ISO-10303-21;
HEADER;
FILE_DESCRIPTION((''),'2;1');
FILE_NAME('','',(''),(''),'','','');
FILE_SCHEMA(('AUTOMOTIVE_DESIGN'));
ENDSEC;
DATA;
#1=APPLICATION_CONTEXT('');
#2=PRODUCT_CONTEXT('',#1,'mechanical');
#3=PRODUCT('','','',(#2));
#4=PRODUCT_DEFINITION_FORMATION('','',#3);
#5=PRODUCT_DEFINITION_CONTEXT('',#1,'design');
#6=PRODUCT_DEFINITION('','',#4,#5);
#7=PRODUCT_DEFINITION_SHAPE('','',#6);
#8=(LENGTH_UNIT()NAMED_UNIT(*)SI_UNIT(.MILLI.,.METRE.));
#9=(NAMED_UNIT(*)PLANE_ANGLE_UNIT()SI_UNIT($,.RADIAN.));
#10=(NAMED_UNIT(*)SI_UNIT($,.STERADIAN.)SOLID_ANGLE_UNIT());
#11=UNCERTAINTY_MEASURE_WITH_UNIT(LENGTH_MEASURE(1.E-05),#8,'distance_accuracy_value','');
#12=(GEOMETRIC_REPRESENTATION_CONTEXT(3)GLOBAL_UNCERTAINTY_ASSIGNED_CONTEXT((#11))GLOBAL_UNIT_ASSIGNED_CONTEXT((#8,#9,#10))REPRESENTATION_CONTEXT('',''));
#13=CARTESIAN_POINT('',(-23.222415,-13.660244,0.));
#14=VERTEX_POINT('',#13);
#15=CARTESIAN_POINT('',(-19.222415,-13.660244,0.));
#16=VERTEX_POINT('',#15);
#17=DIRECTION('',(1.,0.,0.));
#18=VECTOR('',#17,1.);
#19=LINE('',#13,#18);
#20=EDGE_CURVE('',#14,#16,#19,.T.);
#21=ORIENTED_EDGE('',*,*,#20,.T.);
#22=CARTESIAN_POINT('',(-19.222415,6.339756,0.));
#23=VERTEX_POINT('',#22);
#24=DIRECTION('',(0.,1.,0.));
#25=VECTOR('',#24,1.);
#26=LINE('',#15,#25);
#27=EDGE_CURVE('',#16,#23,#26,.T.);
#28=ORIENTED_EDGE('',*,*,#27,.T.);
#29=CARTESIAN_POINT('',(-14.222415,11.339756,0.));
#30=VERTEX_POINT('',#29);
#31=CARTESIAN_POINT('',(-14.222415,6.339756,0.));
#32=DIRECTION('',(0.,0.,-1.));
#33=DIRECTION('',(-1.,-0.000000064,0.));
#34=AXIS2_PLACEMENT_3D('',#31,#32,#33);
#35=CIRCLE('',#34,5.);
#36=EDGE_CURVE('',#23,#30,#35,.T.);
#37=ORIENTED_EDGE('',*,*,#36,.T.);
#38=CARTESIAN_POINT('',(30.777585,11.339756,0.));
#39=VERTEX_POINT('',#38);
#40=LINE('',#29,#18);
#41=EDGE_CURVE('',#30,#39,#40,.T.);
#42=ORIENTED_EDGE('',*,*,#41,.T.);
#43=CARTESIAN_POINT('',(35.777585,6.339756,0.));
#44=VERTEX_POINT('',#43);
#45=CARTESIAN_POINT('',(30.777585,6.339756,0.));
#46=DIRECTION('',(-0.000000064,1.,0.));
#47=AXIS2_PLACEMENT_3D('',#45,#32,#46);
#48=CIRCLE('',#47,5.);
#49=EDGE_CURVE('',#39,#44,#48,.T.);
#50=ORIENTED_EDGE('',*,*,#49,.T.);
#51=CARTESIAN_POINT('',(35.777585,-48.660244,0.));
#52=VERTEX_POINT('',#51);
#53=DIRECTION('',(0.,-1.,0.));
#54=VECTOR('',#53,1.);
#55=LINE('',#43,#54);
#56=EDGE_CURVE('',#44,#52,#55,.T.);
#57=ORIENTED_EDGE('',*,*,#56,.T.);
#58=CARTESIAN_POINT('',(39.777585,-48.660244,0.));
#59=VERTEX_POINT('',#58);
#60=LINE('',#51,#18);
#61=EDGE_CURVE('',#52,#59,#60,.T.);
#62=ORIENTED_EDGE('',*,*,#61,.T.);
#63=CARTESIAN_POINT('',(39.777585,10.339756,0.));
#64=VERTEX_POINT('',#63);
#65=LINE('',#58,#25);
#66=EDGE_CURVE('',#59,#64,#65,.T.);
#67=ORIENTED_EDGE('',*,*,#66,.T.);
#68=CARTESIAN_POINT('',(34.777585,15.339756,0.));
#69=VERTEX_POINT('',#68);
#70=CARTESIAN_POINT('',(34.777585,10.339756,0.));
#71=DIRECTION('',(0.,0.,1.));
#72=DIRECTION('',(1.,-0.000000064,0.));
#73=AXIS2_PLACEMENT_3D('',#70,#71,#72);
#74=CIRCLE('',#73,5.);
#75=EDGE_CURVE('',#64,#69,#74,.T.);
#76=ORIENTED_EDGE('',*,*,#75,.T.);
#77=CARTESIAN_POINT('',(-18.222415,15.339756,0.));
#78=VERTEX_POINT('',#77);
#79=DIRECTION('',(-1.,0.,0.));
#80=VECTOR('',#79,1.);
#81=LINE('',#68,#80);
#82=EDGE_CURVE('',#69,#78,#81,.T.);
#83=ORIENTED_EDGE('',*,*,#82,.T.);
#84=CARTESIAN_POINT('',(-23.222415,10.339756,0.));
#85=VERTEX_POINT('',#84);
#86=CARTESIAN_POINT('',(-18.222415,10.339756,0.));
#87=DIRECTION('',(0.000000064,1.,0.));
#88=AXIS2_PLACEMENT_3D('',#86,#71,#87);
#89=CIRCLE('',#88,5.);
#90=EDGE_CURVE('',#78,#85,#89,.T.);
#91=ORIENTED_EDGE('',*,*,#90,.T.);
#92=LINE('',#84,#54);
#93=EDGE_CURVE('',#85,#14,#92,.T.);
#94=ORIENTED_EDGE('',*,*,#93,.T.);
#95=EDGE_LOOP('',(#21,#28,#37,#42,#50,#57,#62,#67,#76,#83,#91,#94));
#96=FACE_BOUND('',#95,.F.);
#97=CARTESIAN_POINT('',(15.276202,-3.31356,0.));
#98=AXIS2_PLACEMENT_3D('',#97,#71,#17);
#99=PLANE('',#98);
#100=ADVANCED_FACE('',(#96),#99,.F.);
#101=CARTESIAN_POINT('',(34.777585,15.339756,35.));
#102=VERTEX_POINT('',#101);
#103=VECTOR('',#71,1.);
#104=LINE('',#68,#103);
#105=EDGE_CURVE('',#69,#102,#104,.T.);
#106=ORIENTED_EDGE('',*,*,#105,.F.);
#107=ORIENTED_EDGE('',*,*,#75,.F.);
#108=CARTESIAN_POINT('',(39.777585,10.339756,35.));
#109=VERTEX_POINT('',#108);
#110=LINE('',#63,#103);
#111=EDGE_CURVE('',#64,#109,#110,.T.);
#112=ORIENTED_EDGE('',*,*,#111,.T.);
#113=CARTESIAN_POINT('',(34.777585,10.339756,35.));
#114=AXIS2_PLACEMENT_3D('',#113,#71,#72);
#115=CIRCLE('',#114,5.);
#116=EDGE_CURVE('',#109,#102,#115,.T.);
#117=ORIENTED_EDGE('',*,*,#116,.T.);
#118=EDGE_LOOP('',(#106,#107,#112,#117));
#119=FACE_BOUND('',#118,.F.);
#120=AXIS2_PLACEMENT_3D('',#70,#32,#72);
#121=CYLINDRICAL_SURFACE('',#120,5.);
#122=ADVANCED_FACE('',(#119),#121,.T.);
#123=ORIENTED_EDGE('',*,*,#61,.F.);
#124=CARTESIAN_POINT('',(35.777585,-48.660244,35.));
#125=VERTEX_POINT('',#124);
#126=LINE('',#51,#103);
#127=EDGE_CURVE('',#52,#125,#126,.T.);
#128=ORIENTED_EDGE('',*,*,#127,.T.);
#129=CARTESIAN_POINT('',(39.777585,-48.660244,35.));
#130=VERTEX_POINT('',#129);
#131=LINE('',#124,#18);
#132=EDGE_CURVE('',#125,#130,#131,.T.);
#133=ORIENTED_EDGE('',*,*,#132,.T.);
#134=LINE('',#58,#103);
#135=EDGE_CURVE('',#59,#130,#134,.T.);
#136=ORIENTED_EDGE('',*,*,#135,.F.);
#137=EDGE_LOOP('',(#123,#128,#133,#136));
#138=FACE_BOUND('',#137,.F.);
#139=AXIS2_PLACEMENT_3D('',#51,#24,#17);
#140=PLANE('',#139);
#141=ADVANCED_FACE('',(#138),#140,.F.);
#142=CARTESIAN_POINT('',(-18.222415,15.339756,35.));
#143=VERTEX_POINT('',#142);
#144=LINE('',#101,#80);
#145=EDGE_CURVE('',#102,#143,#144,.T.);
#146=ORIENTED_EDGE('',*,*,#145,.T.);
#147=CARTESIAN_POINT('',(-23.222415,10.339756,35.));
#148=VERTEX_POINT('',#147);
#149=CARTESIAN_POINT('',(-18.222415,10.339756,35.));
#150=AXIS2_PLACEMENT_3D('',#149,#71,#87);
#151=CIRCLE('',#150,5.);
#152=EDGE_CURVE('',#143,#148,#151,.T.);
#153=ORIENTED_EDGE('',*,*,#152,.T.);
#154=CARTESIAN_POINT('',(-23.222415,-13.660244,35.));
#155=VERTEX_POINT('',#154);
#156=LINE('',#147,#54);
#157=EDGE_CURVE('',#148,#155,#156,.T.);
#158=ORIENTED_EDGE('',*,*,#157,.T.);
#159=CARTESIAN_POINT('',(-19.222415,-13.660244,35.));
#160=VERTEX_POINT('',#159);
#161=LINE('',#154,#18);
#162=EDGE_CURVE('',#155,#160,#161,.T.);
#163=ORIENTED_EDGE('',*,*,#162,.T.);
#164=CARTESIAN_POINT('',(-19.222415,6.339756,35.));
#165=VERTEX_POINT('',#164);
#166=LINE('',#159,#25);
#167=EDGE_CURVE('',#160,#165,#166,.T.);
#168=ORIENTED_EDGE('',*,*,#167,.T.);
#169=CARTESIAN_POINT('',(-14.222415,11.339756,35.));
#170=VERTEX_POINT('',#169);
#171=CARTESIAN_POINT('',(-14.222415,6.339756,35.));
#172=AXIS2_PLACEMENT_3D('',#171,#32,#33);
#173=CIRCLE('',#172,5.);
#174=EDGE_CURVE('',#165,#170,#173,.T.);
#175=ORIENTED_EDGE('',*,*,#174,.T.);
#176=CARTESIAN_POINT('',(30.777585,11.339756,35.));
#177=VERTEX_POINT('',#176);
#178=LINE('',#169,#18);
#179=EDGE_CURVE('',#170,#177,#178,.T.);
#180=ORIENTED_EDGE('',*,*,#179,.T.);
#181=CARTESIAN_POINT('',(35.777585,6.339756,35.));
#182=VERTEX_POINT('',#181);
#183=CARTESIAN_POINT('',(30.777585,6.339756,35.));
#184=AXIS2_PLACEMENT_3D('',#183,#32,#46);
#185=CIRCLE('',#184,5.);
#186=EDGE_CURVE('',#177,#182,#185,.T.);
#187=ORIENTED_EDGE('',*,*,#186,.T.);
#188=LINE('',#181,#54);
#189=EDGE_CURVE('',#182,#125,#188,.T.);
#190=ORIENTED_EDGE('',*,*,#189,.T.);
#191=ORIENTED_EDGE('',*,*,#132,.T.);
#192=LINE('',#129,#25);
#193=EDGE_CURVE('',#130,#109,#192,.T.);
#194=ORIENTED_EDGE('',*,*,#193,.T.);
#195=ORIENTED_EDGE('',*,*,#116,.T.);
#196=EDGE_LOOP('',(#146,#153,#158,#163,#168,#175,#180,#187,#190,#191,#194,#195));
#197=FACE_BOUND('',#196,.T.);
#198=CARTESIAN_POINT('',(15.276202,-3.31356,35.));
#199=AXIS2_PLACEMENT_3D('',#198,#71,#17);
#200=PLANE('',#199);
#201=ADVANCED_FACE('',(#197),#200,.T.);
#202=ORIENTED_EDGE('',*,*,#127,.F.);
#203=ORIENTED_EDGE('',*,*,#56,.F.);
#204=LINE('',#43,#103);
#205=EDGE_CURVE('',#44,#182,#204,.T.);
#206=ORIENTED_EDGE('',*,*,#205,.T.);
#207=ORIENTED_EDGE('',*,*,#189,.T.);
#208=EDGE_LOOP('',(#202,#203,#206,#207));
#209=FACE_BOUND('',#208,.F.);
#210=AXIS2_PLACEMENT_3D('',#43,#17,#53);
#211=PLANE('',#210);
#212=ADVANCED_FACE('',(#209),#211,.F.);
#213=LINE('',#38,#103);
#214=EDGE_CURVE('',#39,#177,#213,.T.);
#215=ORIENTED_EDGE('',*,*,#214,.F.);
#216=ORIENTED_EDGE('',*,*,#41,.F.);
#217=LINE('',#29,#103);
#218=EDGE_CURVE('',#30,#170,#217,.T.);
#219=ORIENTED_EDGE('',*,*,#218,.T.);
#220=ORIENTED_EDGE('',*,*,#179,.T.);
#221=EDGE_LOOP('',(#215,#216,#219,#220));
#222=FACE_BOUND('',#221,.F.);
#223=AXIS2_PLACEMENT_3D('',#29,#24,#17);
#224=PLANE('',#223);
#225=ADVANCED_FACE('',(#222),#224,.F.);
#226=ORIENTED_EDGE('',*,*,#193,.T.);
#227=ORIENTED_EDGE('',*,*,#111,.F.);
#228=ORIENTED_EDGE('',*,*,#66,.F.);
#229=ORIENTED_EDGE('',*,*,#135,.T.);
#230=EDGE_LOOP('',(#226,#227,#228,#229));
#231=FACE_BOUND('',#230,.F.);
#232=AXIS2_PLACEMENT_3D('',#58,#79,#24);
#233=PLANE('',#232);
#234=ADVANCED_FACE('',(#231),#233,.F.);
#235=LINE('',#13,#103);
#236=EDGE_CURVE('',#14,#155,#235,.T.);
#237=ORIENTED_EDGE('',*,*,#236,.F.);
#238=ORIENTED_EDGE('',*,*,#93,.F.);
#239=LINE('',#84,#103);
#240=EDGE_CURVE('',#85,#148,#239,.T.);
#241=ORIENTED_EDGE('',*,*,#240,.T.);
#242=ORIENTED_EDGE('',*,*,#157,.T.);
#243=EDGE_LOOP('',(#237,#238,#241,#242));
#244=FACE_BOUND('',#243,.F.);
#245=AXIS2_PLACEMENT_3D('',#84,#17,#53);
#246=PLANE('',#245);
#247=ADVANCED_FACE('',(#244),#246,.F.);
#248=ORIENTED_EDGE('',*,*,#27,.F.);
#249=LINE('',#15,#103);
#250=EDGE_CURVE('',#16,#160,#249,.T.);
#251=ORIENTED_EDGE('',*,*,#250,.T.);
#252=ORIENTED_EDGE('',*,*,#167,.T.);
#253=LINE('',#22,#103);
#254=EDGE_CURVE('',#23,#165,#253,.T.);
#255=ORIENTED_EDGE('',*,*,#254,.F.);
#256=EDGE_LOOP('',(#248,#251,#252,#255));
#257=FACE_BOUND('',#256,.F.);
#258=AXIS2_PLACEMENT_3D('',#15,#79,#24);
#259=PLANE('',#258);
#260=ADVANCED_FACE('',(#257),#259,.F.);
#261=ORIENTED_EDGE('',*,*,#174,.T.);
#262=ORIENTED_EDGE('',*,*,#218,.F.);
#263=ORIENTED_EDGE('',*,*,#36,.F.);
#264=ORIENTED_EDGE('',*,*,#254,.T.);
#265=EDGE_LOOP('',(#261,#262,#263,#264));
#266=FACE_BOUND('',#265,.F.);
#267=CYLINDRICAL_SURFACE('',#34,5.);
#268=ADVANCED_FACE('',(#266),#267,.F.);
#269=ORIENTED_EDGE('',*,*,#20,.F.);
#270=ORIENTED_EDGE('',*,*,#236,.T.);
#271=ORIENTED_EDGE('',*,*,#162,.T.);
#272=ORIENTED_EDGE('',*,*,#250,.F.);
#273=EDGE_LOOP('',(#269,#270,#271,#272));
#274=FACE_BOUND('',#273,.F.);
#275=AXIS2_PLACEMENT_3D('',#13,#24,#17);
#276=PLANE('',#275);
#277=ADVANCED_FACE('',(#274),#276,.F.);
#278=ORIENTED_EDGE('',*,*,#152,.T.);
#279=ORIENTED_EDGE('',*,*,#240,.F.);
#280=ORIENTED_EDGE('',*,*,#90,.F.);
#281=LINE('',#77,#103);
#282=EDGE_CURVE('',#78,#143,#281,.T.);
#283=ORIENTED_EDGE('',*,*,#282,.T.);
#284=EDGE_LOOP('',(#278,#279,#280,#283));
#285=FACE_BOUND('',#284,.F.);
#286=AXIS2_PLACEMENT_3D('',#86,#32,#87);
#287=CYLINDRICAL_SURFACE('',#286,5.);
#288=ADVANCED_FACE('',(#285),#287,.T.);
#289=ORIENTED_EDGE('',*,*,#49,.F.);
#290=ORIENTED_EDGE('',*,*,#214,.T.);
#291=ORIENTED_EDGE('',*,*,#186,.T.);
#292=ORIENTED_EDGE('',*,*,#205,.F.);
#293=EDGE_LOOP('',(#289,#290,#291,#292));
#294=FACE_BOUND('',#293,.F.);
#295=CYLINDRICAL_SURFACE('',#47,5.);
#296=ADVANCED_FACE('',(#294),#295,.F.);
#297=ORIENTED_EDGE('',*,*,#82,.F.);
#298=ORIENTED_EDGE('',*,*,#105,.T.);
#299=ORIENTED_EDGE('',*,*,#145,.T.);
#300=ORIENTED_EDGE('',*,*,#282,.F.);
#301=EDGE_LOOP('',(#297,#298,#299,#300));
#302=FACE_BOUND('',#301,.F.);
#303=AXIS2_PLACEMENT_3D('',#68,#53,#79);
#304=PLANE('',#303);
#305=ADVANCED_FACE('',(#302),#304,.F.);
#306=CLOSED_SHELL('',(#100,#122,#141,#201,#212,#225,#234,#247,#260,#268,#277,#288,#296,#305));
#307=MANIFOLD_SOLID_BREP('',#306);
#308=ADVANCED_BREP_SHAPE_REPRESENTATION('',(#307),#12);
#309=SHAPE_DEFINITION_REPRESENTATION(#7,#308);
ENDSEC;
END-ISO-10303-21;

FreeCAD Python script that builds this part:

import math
import FreeCAD as App
import Part
import Sketcher

V = App.Vector
Q = App.Units.Quantity

doc = App.newDocument("Part")
body = doc.addObject("PartDesign::Body", "Body")

sketch1 = body.newObject("Sketcher::SketchObject", "Sketch")
sketch1.AttachmentSupport = (doc.getObject("XY_Plane"), [""])
sketch1.MapMode = "FlatFace"
sketch1.addGeometry(Part.ArcOfCircle(Part.Circle(V(-14.2, 6.3, 0), V(0, 0, 1), 5), math.radians(90), math.radians(180)), False)
sketch1.addGeometry(Part.LineSegment(V(-14.2, 11.3, 0), V(30.8, 11.3, 0)), False)
sketch1.addGeometry(Part.ArcOfCircle(Part.Circle(V(30.8, 6.3, 0), V(0, 0, 1), 5), math.radians(0), math.radians(90)), False)
sketch1.addGeometry(Part.LineSegment(V(35.8, 6.3, 0), V(35.8, -48.7, 0)), False)
sketch1.addGeometry(Part.LineSegment(V(35.8, -48.7, 0), V(39.8, -48.7, 0)), False)
sketch1.addGeometry(Part.LineSegment(V(39.8, -48.7, 0), V(39.8, 10.3, 0)), False)
sketch1.addGeometry(Part.ArcOfCircle(Part.Circle(V(34.8, 10.3, 0), V(0, 0, 1), 5), math.radians(0), math.radians(90)), False)
sketch1.addGeometry(Part.LineSegment(V(34.8, 15.3, 0), V(-18.2, 15.3, 0)), False)
sketch1.addGeometry(Part.ArcOfCircle(Part.Circle(V(-18.2, 10.3, 0), V(0, 0, 1), 5), math.radians(90), math.radians(180)), False)
sketch1.addGeometry(Part.LineSegment(V(-23.2, 10.3, 0), V(-23.2, -13.7, 0)), False)
sketch1.addGeometry(Part.LineSegment(V(-23.2, -13.7, 0), V(-19.2, -13.7, 0)), False)
sketch1.addGeometry(Part.LineSegment(V(-19.2, -13.7, 0), V(-19.2, 6.3, 0)), False)
sketch1.addConstraint(Sketcher.Constraint("Tangent", 0, 1, 1, 1))
sketch1.addConstraint(Sketcher.Constraint("Tangent", 1, 2, 2, 2))
sketch1.addConstraint(Sketcher.Constraint("Tangent", 2, 1, 3, 1))
sketch1.addConstraint(Sketcher.Constraint("Coincident", 3, 2, 4, 1))
sketch1.addConstraint(Sketcher.Constraint("Coincident", 4, 2, 5, 1))
sketch1.addConstraint(Sketcher.Constraint("Tangent", 5, 2, 6, 1))
sketch1.addConstraint(Sketcher.Constraint("Tangent", 6, 2, 7, 1))
sketch1.addConstraint(Sketcher.Constraint("Tangent", 7, 2, 8, 1))
sketch1.addConstraint(Sketcher.Constraint("Tangent", 8, 2, 9, 1))
sketch1.addConstraint(Sketcher.Constraint("Coincident", 9, 2, 10, 1))
sketch1.addConstraint(Sketcher.Constraint("Coincident", 10, 2, 11, 1))
sketch1.addConstraint(Sketcher.Constraint("Tangent", 11, 2, 0, 2))
sketch1.addConstraint(Sketcher.Constraint("Horizontal", 1))
sketch1.addConstraint(Sketcher.Constraint("Vertical", 3))
sketch1.addConstraint(Sketcher.Constraint("Horizontal", 4))
sketch1.addConstraint(Sketcher.Constraint("Vertical", 5))
sketch1.addConstraint(Sketcher.Constraint("Horizontal", 7))
sketch1.addConstraint(Sketcher.Constraint("Vertical", 9))
sketch1.addConstraint(Sketcher.Constraint("Horizontal", 10))
sketch1.addConstraint(Sketcher.Constraint("Vertical", 11))
sketch1.addConstraint(Sketcher.Constraint("Equal", 0, 2))
sketch1.addConstraint(Sketcher.Constraint("Equal", 2, 6))
sketch1.addConstraint(Sketcher.Constraint("Equal", 6, 8))
sketch1.addConstraint(Sketcher.Constraint("Equal", 4, 10))
sketch1.addConstraint(Sketcher.Constraint("Radius", 0, Q("5 mm")))
sketch1.addConstraint(Sketcher.Constraint("DistanceX", 1, 1, 1, 2, Q("45 mm")))
sketch1.addConstraint(Sketcher.Constraint("DistanceX", 4, 1, 4, 2, Q("4 mm")))
sketch1.addConstraint(Sketcher.Constraint("DistanceY", 3, 2, 3, 1, Q("55 mm")))
sketch1.addConstraint(Sketcher.Constraint("DistanceY", 5, 1, 5, 2, Q("59 mm")))
sketch1.addConstraint(Sketcher.Constraint("DistanceY", 9, 2, 9, 1, Q("24 mm")))
sketch1.addConstraint(Sketcher.Constraint("DistanceX", 0, 3, -1, 1, Q("14.222415 mm")))
sketch1.addConstraint(Sketcher.Constraint("DistanceY", -1, 1, 0, 3, Q("6.339756 mm")))
pad1 = body.newObject("PartDesign::Pad", "Pad")
pad1.Profile = sketch1
pad1.Length = 35

doc.recompute()
